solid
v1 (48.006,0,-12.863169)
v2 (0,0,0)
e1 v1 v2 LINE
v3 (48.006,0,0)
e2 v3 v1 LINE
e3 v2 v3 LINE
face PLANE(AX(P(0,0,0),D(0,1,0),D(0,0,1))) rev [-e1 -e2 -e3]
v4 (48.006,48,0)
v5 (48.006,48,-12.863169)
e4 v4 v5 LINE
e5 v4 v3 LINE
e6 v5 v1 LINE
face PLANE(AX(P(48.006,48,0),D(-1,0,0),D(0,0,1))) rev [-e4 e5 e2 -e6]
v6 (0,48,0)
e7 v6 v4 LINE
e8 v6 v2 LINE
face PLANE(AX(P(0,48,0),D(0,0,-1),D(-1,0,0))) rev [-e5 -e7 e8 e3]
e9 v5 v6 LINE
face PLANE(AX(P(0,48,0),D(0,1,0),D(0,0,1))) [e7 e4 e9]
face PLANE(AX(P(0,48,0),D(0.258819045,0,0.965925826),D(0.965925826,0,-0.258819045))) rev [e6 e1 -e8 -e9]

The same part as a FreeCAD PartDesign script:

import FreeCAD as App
import Part
import Sketcher

V = App.Vector
Q = App.Units.Quantity


def add_polygon(sketch, points):
    """Adds a closed chain of lines whose ends are joined by coincident constraints."""
    first, n = sketch.GeometryCount, len(points)
    for a, b in zip(points, points[1:] + points[:1]):
        sketch.addGeometry(Part.LineSegment(App.Vector(*a, 0), App.Vector(*b, 0)), False)
    for i in range(n):
        sketch.addConstraint(Sketcher.Constraint("Coincident", first + i, 2, first + (i + 1) % n, 1))

doc = App.newDocument("Part")
body = doc.addObject("PartDesign::Body", "Body")

# Sketch on XZ plane
sketch1 = doc.addObject("Sketcher::SketchObject", "Sketch")
body.addObject(sketch1)
sketch1.AttachmentSupport = (doc.XZ_Plane, [""])
sketch1.MapMode = "FlatFace"
add_polygon(sketch1, [(0, 0), (48.006, 0), (48.006, -12.863169)])  # lines 0-2
sketch1.addConstraint([
    Sketcher.Constraint("Horizontal", 0),
    Sketcher.Constraint("Vertical", 1),
    Sketcher.Constraint("Coincident", 2, 2, -1, 1),
    Sketcher.Constraint("Angle", 2, Q("165 deg")),
    Sketcher.Constraint("DistanceX", 0, 1, 0, 2, 48.006),
])
pad1 = doc.addObject("PartDesign::Pad", "Pad")
body.addObject(pad1)
pad1.Profile = sketch1
pad1.Length = 48
pad1.Reversed = True

doc.recompute()
